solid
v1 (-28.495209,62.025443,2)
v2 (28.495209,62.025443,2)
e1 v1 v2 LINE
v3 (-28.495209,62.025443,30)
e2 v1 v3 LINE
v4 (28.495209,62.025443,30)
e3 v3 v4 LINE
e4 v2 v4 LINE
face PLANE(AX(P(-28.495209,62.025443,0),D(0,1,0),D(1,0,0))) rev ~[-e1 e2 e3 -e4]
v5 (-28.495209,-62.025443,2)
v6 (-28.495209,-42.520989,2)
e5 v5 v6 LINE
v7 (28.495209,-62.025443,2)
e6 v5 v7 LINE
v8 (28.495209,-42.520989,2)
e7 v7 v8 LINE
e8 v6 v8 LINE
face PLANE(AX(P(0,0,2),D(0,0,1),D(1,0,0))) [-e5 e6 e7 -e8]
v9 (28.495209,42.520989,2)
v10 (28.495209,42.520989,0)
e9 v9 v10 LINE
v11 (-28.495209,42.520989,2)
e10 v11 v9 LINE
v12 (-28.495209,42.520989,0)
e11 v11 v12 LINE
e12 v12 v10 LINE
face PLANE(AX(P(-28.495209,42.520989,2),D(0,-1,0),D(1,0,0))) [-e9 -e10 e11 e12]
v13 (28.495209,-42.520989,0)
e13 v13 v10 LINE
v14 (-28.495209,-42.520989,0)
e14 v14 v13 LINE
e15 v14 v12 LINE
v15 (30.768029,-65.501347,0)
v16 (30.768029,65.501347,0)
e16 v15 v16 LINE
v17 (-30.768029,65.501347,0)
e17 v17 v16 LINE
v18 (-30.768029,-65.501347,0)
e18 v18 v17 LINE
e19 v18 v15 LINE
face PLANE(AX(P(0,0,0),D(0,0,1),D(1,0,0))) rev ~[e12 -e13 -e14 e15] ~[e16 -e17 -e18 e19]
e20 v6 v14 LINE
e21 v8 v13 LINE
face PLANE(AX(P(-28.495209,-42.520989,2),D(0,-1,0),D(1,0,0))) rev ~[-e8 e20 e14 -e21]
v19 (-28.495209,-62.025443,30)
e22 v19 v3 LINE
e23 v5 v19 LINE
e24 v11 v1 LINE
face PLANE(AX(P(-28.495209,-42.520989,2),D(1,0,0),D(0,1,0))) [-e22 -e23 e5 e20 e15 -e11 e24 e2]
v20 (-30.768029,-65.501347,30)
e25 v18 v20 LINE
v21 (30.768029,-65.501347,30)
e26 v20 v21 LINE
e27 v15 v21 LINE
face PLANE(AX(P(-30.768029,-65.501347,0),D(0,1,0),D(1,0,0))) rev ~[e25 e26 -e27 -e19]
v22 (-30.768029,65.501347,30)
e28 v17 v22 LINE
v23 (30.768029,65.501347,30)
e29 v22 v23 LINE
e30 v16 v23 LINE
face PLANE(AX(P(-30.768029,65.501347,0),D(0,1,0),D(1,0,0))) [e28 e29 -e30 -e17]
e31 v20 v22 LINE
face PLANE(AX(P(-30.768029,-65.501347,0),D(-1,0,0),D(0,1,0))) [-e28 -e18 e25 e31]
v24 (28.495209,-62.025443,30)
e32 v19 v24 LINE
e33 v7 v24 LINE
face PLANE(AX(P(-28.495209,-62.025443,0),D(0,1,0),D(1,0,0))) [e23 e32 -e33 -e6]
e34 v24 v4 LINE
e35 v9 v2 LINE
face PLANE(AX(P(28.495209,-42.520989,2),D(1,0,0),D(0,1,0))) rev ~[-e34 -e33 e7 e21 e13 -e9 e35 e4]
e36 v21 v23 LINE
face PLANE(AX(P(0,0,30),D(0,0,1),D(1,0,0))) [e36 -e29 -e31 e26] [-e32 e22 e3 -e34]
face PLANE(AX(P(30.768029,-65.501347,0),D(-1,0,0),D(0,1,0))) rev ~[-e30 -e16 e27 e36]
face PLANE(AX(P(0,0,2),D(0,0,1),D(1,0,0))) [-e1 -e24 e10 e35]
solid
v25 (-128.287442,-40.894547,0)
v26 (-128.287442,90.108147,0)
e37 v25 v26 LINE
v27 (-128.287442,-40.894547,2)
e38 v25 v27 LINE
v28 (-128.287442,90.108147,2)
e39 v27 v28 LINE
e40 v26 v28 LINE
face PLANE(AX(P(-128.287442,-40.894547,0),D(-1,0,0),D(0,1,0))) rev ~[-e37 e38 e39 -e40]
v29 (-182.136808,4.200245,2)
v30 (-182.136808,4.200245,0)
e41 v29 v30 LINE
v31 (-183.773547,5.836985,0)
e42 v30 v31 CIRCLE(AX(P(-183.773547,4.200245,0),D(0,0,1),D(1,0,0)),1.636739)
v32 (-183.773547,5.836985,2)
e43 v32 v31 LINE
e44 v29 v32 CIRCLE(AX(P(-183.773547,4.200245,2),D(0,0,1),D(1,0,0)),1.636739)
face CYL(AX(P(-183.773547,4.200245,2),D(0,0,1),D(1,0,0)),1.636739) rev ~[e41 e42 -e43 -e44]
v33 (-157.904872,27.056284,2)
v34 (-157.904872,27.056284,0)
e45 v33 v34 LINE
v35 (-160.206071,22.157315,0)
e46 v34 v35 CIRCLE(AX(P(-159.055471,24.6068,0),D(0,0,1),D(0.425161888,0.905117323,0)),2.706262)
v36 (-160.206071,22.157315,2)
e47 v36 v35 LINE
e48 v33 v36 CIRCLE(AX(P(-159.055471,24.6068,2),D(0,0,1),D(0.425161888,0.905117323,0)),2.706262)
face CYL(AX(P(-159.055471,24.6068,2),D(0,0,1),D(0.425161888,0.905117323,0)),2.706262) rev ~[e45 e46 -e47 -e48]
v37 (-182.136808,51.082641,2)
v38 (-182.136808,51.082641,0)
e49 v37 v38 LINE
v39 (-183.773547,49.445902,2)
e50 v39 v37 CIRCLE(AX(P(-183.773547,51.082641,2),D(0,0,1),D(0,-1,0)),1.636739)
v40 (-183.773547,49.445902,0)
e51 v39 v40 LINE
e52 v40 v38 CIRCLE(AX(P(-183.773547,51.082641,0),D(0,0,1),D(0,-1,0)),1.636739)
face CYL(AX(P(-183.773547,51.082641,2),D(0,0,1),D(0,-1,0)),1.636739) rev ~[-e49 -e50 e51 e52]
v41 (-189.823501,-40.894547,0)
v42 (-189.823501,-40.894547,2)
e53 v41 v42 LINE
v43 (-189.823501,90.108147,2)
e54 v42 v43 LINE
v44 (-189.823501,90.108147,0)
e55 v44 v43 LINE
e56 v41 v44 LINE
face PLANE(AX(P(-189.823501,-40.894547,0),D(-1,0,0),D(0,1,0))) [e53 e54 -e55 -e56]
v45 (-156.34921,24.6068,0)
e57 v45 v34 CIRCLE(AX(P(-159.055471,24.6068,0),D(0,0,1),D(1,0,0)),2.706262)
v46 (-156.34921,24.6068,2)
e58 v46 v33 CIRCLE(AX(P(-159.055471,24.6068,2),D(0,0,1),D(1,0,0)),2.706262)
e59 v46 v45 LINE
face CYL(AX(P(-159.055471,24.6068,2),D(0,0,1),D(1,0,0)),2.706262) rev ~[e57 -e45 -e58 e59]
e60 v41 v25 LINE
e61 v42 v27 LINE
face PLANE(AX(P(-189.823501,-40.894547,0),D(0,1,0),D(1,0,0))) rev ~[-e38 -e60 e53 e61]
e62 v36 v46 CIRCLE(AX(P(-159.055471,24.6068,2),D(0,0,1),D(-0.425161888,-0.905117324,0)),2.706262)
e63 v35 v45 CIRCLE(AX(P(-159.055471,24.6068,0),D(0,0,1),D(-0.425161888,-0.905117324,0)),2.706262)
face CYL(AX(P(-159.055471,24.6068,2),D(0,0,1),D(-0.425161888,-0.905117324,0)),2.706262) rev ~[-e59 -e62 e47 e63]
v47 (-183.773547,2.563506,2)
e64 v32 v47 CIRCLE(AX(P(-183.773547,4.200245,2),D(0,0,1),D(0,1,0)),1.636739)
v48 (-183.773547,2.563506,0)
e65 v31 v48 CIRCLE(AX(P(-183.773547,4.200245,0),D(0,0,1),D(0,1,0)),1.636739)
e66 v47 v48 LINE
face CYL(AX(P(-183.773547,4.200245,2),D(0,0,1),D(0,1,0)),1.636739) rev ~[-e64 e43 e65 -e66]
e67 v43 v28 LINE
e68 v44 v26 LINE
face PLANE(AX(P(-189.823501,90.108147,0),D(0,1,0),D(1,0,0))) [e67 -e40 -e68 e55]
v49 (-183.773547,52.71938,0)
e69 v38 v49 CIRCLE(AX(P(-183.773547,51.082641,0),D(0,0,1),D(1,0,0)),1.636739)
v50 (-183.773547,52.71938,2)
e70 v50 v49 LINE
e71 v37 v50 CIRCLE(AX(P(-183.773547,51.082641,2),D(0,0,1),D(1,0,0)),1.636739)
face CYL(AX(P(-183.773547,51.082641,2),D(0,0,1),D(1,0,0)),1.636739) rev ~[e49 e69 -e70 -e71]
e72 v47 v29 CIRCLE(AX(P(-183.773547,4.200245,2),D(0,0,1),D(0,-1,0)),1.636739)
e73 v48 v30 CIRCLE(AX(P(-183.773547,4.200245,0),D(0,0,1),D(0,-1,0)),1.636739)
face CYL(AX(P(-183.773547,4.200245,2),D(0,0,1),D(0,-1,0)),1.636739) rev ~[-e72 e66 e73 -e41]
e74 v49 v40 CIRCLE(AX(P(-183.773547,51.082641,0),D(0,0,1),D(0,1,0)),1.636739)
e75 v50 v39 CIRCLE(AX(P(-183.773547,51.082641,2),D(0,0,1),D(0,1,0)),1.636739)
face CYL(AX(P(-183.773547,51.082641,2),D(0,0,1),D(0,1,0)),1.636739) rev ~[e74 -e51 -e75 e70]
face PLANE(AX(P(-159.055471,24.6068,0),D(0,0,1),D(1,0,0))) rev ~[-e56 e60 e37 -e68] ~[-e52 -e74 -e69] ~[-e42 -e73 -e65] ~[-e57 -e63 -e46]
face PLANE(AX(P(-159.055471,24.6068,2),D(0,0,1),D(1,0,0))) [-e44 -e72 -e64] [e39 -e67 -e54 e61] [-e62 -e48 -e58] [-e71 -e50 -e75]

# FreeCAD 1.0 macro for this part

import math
import FreeCAD as App
import Part
import Sketcher

V = App.Vector
Q = App.Units.Quantity

doc = App.newDocument("Part")
body = doc.addObject("PartDesign::Body", "Body")

# Sketch on XY plane
sketch1 = doc.addObject("Sketcher::SketchObject", "Sketch")
body.addObject(sketch1)
sketch1.AttachmentSupport = (doc.XY_Plane, [""])
sketch1.MapMode = "FlatFace"
sketch1.addGeometry(Part.LineSegment(V(-31, 66, 0), V(-31, -66, 0)), False)
sketch1.addGeometry(Part.LineSegment(V(-31, -66, 0), V(31, -66, 0)), False)
sketch1.addGeometry(Part.LineSegment(V(31, -66, 0), V(31, 66, 0)), False)
sketch1.addGeometry(Part.LineSegment(V(31, 66, 0), V(-31, 66, 0)), False)
sketch1.addGeometry(Part.LineSegment(V(28, -62, 0), V(-28, -62, 0)), False)
sketch1.addGeometry(Part.LineSegment(V(-28, -62, 0), V(-28, 62, 0)), False)
sketch1.addGeometry(Part.LineSegment(V(-28, 62, 0), V(28, 62, 0)), False)
sketch1.addGeometry(Part.LineSegment(V(28, 62, 0), V(28, -62, 0)), False)
sketch1.addConstraint(Sketcher.Constraint("Coincident", 0, 2, 1, 1))
sketch1.addConstraint(Sketcher.Constraint("Coincident", 1, 2, 2, 1))
sketch1.addConstraint(Sketcher.Constraint("Coincident", 2, 2, 3, 1))
sketch1.addConstraint(Sketcher.Constraint("Coincident", 3, 2, 0, 1))
sketch1.addConstraint(Sketcher.Constraint("Coincident", 4, 2, 5, 1))
sketch1.addConstraint(Sketcher.Constraint("Coincident", 5, 2, 6, 1))
sketch1.addConstraint(Sketcher.Constraint("Coincident", 6, 2, 7, 1))
sketch1.addConstraint(Sketcher.Constraint("Coincident", 7, 2, 4, 1))
sketch1.addConstraint(Sketcher.Constraint("Vertical", 0))
sketch1.addConstraint(Sketcher.Constraint("Horizontal", 1))
sketch1.addConstraint(Sketcher.Constraint("Vertical", 2))
sketch1.addConstraint(Sketcher.Constraint("Horizontal", 3))
sketch1.addConstraint(Sketcher.Constraint("Horizontal", 4))
sketch1.addConstraint(Sketcher.Constraint("Vertical", 5))
sketch1.addConstraint(Sketcher.Constraint("Horizontal", 6))
sketch1.addConstraint(Sketcher.Constraint("Vertical", 7))
sketch1.addConstraint(Sketcher.Constraint("Symmetric", 0, 2, 2, 2, -1, 1))
sketch1.addConstraint(Sketcher.Constraint("Symmetric", 4, 2, 6, 2, -1, 1))
sketch1.addConstraint(Sketcher.Constraint("DistanceX", 1, 1, 1, 2, Q("61.536059 mm")))
sketch1.addConstraint(Sketcher.Constraint("DistanceX", 4, 2, 4, 1, Q("56.990419 mm")))
sketch1.addConstraint(Sketcher.Constraint("DistanceY", 0, 2, 0, 1, Q("131.002694 mm")))
sketch1.addConstraint(Sketcher.Constraint("DistanceY", 5, 1, 5, 2, Q("124.050885 mm")))
pad1 = doc.addObject("PartDesign::Pad", "Pad")
body.addObject(pad1)
pad1.Profile = sketch1
pad1.Length = 30

# Sketch on XY plane
sketch2 = doc.addObject("Sketcher::SketchObject", "Sketch001")
body.addObject(sketch2)
sketch2.AttachmentSupport = (doc.XY_Plane, [""])
sketch2.MapMode = "FlatFace"
sketch2.addGeometry(Part.LineSegment(V(-28, 62, 0), V(-28, -62, 0)), False)
sketch2.addGeometry(Part.LineSegment(V(-28, -62, 0), V(28, -62, 0)), False)
sketch2.addGeometry(Part.LineSegment(V(28, -62, 0), V(28, 62, 0)), False)
sketch2.addGeometry(Part.LineSegment(V(28, 62, 0), V(-28, 62, 0)), False)
sketch2.addConstraint(Sketcher.Constraint("Coincident", 0, 2, 1, 1))
sketch2.addConstraint(Sketcher.Constraint("Coincident", 1, 2, 2, 1))
sketch2.addConstraint(Sketcher.Constraint("Coincident", 2, 2, 3, 1))
sketch2.addConstraint(Sketcher.Constraint("Coincident", 3, 2, 0, 1))
sketch2.addConstraint(Sketcher.Constraint("Vertical", 0))
sketch2.addConstraint(Sketcher.Constraint("Horizontal", 1))
sketch2.addConstraint(Sketcher.Constraint("Vertical", 2))
sketch2.addConstraint(Sketcher.Constraint("Horizontal", 3))
sketch2.addConstraint(Sketcher.Constraint("Symmetric", 0, 2, 2, 2, -1, 1))
sketch2.addConstraint(Sketcher.Constraint("DistanceX", 1, 1, 1, 2, Q("56.990419 mm")))
sketch2.addConstraint(Sketcher.Constraint("DistanceY", 0, 2, 0, 1, Q("124.050885 mm")))
pad2 = doc.addObject("PartDesign::Pad", "Pad001")
body.addObject(pad2)
pad2.Profile = sketch2
pad2.Length = 2

# Sketch on XY plane
sketch3 = doc.addObject("Sketcher::SketchObject", "Sketch002")
body.addObject(sketch3)
sketch3.AttachmentSupport = (doc.XY_Plane, [""])
sketch3.MapMode = "FlatFace"
sketch3.AttachmentOffset = App.Placement(V(0, 0, 2), App.Rotation())
sketch3.addGeometry(Part.LineSegment(V(-28, 43, 0), V(-28, -43, 0)), False)
sketch3.addGeometry(Part.LineSegment(V(-28, -43, 0), V(28, -43, 0)), False)
sketch3.addGeometry(Part.LineSegment(V(28, -43, 0), V(28, 43, 0)), False)
sketch3.addGeometry(Part.LineSegment(V(28, 43, 0), V(-28, 43, 0)), False)
sketch3.addConstraint(Sketcher.Constraint("Coincident", 0, 2, 1, 1))
sketch3.addConstraint(Sketcher.Constraint("Coincident", 1, 2, 2, 1))
sketch3.addConstraint(Sketcher.Constraint("Coincident", 2, 2, 3, 1))
sketch3.addConstraint(Sketcher.Constraint("Coincident", 3, 2, 0, 1))
sketch3.addConstraint(Sketcher.Constraint("Vertical", 0))
sketch3.addConstraint(Sketcher.Constraint("Horizontal", 1))
sketch3.addConstraint(Sketcher.Constraint("Vertical", 2))
sketch3.addConstraint(Sketcher.Constraint("Horizontal", 3))
sketch3.addConstraint(Sketcher.Constraint("Symmetric", 0, 2, 2, 2, -1, 1))
sketch3.addConstraint(Sketcher.Constraint("DistanceX", 1, 1, 1, 2, Q("56.990419 mm")))
sketch3.addConstraint(Sketcher.Constraint("DistanceY", 0, 2, 0, 1, Q("85.041977 mm")))
pocket1 = doc.addObject("PartDesign::Pocket", "Pocket")
body.addObject(pocket1)
pocket1.Profile = sketch3
pocket1.Length = 25
body2 = doc.addObject("PartDesign::Body", "Body001")

# Sketch on XY plane
sketch4 = doc.addObject("Sketcher::SketchObject", "Sketch003")
body2.addObject(sketch4)
sketch4.AttachmentSupport = (doc.getObject("XY_Plane001"), [""])
sketch4.MapMode = "FlatFace"
sketch4.addGeometry(Part.LineSegment(V(-190, 90, 0), V(-190, -41, 0)), False)
sketch4.addGeometry(Part.LineSegment(V(-190, -41, 0), V(-128, -41, 0)), False)
sketch4.addGeometry(Part.LineSegment(V(-128, -41, 0), V(-128, 90, 0)), False)
sketch4.addGeometry(Part.LineSegment(V(-128, 90, 0), V(-190, 90, 0)), False)
sketch4.addConstraint(Sketcher.Constraint("Coincident", 0, 2, 1, 1))
sketch4.addConstraint(Sketcher.Constraint("Coincident", 1, 2, 2, 1))
sketch4.addConstraint(Sketcher.Constraint("Coincident", 2, 2, 3, 1))
sketch4.addConstraint(Sketcher.Constraint("Coincident", 3, 2, 0, 1))
sketch4.addConstraint(Sketcher.Constraint("Vertical", 0))
sketch4.addConstraint(Sketcher.Constraint("Horizontal", 1))
sketch4.addConstraint(Sketcher.Constraint("Vertical", 2))
sketch4.addConstraint(Sketcher.Constraint("Horizontal", 3))
sketch4.addConstraint(Sketcher.Constraint("DistanceX", 1, 1, 1, 2, Q("61.536059 mm")))
sketch4.addConstraint(Sketcher.Constraint("DistanceX", 0, 2, -1, 1, Q("189.823501 mm")))
sketch4.addConstraint(Sketcher.Constraint("DistanceY", 0, 2, 0, 1, Q("131.002694 mm")))
sketch4.addConstraint(Sketcher.Constraint("DistanceY", 0, 2, -1, 1, Q("40.894547 mm")))
pad3 = doc.addObject("PartDesign::Pad", "Pad002")
body2.addObject(pad3)
pad3.Profile = sketch4
pad3.Length = 2

# Sketch on XY plane
sketch5 = doc.addObject("Sketcher::SketchObject", "Sketch004")
body2.addObject(sketch5)
sketch5.AttachmentSupport = (doc.getObject("XY_Plane001"), [""])
sketch5.MapMode = "FlatFace"
sketch5.AttachmentOffset = App.Placement(V(0, 0, 2), App.Rotation())
sketch5.addGeometry(Part.ArcOfCircle(Part.Circle(V(-183.8, 51.1, 0), V(0, 0, 1), 1.6), math.radians(90), math.radians(270)), False)
sketch5.addGeometry(Part.ArcOfCircle(Part.Circle(V(-183.8, 51.1, 0), V(0, 0, 1), 1.6), math.radians(-90), math.radians(0)), False)
sketch5.addGeometry(Part.ArcOfCircle(Part.Circle(V(-183.8, 51.1, 0), V(0, 0, 1), 1.6), math.radians(0), math.radians(90)), False)
sketch5.addGeometry(Part.ArcOfCircle(Part.Circle(V(-159.1, 24.6, 0), V(0, 0, 1), 2.7), math.radians(0), math.radians(65)), False)
sketch5.addGeometry(Part.ArcOfCircle(Part.Circle(V(-159.1, 24.6, 0), V(0, 0, 1), 2.7), math.radians(65), math.radians(245)), False)
sketch5.addGeometry(Part.ArcOfCircle(Part.Circle(V(-159.1, 24.6, 0), V(0, 0, 1), 2.7), math.radians(-115), math.radians(0)), False)
sketch5.addGeometry(Part.ArcOfCircle(Part.Circle(V(-183.8, 4.2, 0), V(0, 0, 1), 1.6), math.radians(0), math.radians(90)), False)
sketch5.addGeometry(Part.ArcOfCircle(Part.Circle(V(-183.8, 4.2, 0), V(0, 0, 1), 1.6), math.radians(90), math.radians(270)), False)
sketch5.addGeometry(Part.ArcOfCircle(Part.Circle(V(-183.8, 4.2, 0), V(0, 0, 1), 1.6), math.radians(-90), math.radians(0)), False)
sketch5.addConstraint(Sketcher.Constraint("Tangent", 0, 2, 1, 1))
sketch5.addConstraint(Sketcher.Constraint("Tangent", 1, 2, 2, 1))
sketch5.addConstraint(Sketcher.Constraint("Tangent", 2, 2, 0, 1))
sketch5.addConstraint(Sketcher.Constraint("Tangent", 3, 2, 4, 1))
sketch5.addConstraint(Sketcher.Constraint("Tangent", 4, 2, 5, 1))
sketch5.addConstraint(Sketcher.Constraint("Tangent", 5, 2, 3, 1))
sketch5.addConstraint(Sketcher.Constraint("Tangent", 6, 2, 7, 1))
sketch5.addConstraint(Sketcher.Constraint("Tangent", 7, 2, 8, 1))
sketch5.addConstraint(Sketcher.Constraint("Tangent", 8, 2, 6, 1))
sketch5.addConstraint(Sketcher.Constraint("Equal", 2, 6))
sketch5.addConstraint(Sketcher.Constraint("Horizontal", 2, 3, 1, 2))
sketch5.addConstraint(Sketcher.Constraint("Horizontal", 4, 3, 5, 2))
sketch5.addConstraint(Sketcher.Constraint("Horizontal", 7, 3, 8, 2))
sketch5.addConstraint(Sketcher.Constraint("Vertical", 2, 3, 6, 3))
sketch5.addConstraint(Sketcher.Constraint("Vertical", 8, 3, 0, 2))
sketch5.addConstraint(Sketcher.Constraint("Vertical", 0, 2, 2, 2))
sketch5.addConstraint(Sketcher.Constraint("Vertical", 2, 2, 6, 2))
sketch5.addConstraint(Sketcher.Constraint("Vertical", 6, 2, 7, 2))
sketch5.addConstraint(Sketcher.Constraint("Radius", 0, Q("1.636739 mm")))
sketch5.addConstraint(Sketcher.Constraint("Radius", 3, Q("2.706262 mm")))
sketch5.addConstraint(Sketcher.Constraint("DistanceY", -1, 1, 3, 3, Q("24.6068 mm")))
sketch5.addConstraint(Sketcher.Constraint("DistanceY", -1, 1, 0, 2, Q("49.445902 mm")))
sketch5.addConstraint(Sketcher.Constraint("DistanceX", 3, 3, 3, 2, Q("1.150599 mm")))
sketch5.addConstraint(Sketcher.Constraint("DistanceX", 4, 2, 3, 3, Q("1.150599 mm")))
sketch5.addConstraint(Sketcher.Constraint("DistanceX", 3, 3, -1, 1, Q("159.055471 mm")))
sketch5.addConstraint(Sketcher.Constraint("DistanceX", 1, 2, -1, 1, Q("182.136808 mm")))
sketch5.addConstraint(Sketcher.Constraint("DistanceY", 6, 3, 4, 2, Q("17.95707 mm")))
pocket2 = doc.addObject("PartDesign::Pocket", "Pocket001")
body2.addObject(pocket2)
pocket2.Profile = sketch5
pocket2.Length = 25

doc.recompute()
